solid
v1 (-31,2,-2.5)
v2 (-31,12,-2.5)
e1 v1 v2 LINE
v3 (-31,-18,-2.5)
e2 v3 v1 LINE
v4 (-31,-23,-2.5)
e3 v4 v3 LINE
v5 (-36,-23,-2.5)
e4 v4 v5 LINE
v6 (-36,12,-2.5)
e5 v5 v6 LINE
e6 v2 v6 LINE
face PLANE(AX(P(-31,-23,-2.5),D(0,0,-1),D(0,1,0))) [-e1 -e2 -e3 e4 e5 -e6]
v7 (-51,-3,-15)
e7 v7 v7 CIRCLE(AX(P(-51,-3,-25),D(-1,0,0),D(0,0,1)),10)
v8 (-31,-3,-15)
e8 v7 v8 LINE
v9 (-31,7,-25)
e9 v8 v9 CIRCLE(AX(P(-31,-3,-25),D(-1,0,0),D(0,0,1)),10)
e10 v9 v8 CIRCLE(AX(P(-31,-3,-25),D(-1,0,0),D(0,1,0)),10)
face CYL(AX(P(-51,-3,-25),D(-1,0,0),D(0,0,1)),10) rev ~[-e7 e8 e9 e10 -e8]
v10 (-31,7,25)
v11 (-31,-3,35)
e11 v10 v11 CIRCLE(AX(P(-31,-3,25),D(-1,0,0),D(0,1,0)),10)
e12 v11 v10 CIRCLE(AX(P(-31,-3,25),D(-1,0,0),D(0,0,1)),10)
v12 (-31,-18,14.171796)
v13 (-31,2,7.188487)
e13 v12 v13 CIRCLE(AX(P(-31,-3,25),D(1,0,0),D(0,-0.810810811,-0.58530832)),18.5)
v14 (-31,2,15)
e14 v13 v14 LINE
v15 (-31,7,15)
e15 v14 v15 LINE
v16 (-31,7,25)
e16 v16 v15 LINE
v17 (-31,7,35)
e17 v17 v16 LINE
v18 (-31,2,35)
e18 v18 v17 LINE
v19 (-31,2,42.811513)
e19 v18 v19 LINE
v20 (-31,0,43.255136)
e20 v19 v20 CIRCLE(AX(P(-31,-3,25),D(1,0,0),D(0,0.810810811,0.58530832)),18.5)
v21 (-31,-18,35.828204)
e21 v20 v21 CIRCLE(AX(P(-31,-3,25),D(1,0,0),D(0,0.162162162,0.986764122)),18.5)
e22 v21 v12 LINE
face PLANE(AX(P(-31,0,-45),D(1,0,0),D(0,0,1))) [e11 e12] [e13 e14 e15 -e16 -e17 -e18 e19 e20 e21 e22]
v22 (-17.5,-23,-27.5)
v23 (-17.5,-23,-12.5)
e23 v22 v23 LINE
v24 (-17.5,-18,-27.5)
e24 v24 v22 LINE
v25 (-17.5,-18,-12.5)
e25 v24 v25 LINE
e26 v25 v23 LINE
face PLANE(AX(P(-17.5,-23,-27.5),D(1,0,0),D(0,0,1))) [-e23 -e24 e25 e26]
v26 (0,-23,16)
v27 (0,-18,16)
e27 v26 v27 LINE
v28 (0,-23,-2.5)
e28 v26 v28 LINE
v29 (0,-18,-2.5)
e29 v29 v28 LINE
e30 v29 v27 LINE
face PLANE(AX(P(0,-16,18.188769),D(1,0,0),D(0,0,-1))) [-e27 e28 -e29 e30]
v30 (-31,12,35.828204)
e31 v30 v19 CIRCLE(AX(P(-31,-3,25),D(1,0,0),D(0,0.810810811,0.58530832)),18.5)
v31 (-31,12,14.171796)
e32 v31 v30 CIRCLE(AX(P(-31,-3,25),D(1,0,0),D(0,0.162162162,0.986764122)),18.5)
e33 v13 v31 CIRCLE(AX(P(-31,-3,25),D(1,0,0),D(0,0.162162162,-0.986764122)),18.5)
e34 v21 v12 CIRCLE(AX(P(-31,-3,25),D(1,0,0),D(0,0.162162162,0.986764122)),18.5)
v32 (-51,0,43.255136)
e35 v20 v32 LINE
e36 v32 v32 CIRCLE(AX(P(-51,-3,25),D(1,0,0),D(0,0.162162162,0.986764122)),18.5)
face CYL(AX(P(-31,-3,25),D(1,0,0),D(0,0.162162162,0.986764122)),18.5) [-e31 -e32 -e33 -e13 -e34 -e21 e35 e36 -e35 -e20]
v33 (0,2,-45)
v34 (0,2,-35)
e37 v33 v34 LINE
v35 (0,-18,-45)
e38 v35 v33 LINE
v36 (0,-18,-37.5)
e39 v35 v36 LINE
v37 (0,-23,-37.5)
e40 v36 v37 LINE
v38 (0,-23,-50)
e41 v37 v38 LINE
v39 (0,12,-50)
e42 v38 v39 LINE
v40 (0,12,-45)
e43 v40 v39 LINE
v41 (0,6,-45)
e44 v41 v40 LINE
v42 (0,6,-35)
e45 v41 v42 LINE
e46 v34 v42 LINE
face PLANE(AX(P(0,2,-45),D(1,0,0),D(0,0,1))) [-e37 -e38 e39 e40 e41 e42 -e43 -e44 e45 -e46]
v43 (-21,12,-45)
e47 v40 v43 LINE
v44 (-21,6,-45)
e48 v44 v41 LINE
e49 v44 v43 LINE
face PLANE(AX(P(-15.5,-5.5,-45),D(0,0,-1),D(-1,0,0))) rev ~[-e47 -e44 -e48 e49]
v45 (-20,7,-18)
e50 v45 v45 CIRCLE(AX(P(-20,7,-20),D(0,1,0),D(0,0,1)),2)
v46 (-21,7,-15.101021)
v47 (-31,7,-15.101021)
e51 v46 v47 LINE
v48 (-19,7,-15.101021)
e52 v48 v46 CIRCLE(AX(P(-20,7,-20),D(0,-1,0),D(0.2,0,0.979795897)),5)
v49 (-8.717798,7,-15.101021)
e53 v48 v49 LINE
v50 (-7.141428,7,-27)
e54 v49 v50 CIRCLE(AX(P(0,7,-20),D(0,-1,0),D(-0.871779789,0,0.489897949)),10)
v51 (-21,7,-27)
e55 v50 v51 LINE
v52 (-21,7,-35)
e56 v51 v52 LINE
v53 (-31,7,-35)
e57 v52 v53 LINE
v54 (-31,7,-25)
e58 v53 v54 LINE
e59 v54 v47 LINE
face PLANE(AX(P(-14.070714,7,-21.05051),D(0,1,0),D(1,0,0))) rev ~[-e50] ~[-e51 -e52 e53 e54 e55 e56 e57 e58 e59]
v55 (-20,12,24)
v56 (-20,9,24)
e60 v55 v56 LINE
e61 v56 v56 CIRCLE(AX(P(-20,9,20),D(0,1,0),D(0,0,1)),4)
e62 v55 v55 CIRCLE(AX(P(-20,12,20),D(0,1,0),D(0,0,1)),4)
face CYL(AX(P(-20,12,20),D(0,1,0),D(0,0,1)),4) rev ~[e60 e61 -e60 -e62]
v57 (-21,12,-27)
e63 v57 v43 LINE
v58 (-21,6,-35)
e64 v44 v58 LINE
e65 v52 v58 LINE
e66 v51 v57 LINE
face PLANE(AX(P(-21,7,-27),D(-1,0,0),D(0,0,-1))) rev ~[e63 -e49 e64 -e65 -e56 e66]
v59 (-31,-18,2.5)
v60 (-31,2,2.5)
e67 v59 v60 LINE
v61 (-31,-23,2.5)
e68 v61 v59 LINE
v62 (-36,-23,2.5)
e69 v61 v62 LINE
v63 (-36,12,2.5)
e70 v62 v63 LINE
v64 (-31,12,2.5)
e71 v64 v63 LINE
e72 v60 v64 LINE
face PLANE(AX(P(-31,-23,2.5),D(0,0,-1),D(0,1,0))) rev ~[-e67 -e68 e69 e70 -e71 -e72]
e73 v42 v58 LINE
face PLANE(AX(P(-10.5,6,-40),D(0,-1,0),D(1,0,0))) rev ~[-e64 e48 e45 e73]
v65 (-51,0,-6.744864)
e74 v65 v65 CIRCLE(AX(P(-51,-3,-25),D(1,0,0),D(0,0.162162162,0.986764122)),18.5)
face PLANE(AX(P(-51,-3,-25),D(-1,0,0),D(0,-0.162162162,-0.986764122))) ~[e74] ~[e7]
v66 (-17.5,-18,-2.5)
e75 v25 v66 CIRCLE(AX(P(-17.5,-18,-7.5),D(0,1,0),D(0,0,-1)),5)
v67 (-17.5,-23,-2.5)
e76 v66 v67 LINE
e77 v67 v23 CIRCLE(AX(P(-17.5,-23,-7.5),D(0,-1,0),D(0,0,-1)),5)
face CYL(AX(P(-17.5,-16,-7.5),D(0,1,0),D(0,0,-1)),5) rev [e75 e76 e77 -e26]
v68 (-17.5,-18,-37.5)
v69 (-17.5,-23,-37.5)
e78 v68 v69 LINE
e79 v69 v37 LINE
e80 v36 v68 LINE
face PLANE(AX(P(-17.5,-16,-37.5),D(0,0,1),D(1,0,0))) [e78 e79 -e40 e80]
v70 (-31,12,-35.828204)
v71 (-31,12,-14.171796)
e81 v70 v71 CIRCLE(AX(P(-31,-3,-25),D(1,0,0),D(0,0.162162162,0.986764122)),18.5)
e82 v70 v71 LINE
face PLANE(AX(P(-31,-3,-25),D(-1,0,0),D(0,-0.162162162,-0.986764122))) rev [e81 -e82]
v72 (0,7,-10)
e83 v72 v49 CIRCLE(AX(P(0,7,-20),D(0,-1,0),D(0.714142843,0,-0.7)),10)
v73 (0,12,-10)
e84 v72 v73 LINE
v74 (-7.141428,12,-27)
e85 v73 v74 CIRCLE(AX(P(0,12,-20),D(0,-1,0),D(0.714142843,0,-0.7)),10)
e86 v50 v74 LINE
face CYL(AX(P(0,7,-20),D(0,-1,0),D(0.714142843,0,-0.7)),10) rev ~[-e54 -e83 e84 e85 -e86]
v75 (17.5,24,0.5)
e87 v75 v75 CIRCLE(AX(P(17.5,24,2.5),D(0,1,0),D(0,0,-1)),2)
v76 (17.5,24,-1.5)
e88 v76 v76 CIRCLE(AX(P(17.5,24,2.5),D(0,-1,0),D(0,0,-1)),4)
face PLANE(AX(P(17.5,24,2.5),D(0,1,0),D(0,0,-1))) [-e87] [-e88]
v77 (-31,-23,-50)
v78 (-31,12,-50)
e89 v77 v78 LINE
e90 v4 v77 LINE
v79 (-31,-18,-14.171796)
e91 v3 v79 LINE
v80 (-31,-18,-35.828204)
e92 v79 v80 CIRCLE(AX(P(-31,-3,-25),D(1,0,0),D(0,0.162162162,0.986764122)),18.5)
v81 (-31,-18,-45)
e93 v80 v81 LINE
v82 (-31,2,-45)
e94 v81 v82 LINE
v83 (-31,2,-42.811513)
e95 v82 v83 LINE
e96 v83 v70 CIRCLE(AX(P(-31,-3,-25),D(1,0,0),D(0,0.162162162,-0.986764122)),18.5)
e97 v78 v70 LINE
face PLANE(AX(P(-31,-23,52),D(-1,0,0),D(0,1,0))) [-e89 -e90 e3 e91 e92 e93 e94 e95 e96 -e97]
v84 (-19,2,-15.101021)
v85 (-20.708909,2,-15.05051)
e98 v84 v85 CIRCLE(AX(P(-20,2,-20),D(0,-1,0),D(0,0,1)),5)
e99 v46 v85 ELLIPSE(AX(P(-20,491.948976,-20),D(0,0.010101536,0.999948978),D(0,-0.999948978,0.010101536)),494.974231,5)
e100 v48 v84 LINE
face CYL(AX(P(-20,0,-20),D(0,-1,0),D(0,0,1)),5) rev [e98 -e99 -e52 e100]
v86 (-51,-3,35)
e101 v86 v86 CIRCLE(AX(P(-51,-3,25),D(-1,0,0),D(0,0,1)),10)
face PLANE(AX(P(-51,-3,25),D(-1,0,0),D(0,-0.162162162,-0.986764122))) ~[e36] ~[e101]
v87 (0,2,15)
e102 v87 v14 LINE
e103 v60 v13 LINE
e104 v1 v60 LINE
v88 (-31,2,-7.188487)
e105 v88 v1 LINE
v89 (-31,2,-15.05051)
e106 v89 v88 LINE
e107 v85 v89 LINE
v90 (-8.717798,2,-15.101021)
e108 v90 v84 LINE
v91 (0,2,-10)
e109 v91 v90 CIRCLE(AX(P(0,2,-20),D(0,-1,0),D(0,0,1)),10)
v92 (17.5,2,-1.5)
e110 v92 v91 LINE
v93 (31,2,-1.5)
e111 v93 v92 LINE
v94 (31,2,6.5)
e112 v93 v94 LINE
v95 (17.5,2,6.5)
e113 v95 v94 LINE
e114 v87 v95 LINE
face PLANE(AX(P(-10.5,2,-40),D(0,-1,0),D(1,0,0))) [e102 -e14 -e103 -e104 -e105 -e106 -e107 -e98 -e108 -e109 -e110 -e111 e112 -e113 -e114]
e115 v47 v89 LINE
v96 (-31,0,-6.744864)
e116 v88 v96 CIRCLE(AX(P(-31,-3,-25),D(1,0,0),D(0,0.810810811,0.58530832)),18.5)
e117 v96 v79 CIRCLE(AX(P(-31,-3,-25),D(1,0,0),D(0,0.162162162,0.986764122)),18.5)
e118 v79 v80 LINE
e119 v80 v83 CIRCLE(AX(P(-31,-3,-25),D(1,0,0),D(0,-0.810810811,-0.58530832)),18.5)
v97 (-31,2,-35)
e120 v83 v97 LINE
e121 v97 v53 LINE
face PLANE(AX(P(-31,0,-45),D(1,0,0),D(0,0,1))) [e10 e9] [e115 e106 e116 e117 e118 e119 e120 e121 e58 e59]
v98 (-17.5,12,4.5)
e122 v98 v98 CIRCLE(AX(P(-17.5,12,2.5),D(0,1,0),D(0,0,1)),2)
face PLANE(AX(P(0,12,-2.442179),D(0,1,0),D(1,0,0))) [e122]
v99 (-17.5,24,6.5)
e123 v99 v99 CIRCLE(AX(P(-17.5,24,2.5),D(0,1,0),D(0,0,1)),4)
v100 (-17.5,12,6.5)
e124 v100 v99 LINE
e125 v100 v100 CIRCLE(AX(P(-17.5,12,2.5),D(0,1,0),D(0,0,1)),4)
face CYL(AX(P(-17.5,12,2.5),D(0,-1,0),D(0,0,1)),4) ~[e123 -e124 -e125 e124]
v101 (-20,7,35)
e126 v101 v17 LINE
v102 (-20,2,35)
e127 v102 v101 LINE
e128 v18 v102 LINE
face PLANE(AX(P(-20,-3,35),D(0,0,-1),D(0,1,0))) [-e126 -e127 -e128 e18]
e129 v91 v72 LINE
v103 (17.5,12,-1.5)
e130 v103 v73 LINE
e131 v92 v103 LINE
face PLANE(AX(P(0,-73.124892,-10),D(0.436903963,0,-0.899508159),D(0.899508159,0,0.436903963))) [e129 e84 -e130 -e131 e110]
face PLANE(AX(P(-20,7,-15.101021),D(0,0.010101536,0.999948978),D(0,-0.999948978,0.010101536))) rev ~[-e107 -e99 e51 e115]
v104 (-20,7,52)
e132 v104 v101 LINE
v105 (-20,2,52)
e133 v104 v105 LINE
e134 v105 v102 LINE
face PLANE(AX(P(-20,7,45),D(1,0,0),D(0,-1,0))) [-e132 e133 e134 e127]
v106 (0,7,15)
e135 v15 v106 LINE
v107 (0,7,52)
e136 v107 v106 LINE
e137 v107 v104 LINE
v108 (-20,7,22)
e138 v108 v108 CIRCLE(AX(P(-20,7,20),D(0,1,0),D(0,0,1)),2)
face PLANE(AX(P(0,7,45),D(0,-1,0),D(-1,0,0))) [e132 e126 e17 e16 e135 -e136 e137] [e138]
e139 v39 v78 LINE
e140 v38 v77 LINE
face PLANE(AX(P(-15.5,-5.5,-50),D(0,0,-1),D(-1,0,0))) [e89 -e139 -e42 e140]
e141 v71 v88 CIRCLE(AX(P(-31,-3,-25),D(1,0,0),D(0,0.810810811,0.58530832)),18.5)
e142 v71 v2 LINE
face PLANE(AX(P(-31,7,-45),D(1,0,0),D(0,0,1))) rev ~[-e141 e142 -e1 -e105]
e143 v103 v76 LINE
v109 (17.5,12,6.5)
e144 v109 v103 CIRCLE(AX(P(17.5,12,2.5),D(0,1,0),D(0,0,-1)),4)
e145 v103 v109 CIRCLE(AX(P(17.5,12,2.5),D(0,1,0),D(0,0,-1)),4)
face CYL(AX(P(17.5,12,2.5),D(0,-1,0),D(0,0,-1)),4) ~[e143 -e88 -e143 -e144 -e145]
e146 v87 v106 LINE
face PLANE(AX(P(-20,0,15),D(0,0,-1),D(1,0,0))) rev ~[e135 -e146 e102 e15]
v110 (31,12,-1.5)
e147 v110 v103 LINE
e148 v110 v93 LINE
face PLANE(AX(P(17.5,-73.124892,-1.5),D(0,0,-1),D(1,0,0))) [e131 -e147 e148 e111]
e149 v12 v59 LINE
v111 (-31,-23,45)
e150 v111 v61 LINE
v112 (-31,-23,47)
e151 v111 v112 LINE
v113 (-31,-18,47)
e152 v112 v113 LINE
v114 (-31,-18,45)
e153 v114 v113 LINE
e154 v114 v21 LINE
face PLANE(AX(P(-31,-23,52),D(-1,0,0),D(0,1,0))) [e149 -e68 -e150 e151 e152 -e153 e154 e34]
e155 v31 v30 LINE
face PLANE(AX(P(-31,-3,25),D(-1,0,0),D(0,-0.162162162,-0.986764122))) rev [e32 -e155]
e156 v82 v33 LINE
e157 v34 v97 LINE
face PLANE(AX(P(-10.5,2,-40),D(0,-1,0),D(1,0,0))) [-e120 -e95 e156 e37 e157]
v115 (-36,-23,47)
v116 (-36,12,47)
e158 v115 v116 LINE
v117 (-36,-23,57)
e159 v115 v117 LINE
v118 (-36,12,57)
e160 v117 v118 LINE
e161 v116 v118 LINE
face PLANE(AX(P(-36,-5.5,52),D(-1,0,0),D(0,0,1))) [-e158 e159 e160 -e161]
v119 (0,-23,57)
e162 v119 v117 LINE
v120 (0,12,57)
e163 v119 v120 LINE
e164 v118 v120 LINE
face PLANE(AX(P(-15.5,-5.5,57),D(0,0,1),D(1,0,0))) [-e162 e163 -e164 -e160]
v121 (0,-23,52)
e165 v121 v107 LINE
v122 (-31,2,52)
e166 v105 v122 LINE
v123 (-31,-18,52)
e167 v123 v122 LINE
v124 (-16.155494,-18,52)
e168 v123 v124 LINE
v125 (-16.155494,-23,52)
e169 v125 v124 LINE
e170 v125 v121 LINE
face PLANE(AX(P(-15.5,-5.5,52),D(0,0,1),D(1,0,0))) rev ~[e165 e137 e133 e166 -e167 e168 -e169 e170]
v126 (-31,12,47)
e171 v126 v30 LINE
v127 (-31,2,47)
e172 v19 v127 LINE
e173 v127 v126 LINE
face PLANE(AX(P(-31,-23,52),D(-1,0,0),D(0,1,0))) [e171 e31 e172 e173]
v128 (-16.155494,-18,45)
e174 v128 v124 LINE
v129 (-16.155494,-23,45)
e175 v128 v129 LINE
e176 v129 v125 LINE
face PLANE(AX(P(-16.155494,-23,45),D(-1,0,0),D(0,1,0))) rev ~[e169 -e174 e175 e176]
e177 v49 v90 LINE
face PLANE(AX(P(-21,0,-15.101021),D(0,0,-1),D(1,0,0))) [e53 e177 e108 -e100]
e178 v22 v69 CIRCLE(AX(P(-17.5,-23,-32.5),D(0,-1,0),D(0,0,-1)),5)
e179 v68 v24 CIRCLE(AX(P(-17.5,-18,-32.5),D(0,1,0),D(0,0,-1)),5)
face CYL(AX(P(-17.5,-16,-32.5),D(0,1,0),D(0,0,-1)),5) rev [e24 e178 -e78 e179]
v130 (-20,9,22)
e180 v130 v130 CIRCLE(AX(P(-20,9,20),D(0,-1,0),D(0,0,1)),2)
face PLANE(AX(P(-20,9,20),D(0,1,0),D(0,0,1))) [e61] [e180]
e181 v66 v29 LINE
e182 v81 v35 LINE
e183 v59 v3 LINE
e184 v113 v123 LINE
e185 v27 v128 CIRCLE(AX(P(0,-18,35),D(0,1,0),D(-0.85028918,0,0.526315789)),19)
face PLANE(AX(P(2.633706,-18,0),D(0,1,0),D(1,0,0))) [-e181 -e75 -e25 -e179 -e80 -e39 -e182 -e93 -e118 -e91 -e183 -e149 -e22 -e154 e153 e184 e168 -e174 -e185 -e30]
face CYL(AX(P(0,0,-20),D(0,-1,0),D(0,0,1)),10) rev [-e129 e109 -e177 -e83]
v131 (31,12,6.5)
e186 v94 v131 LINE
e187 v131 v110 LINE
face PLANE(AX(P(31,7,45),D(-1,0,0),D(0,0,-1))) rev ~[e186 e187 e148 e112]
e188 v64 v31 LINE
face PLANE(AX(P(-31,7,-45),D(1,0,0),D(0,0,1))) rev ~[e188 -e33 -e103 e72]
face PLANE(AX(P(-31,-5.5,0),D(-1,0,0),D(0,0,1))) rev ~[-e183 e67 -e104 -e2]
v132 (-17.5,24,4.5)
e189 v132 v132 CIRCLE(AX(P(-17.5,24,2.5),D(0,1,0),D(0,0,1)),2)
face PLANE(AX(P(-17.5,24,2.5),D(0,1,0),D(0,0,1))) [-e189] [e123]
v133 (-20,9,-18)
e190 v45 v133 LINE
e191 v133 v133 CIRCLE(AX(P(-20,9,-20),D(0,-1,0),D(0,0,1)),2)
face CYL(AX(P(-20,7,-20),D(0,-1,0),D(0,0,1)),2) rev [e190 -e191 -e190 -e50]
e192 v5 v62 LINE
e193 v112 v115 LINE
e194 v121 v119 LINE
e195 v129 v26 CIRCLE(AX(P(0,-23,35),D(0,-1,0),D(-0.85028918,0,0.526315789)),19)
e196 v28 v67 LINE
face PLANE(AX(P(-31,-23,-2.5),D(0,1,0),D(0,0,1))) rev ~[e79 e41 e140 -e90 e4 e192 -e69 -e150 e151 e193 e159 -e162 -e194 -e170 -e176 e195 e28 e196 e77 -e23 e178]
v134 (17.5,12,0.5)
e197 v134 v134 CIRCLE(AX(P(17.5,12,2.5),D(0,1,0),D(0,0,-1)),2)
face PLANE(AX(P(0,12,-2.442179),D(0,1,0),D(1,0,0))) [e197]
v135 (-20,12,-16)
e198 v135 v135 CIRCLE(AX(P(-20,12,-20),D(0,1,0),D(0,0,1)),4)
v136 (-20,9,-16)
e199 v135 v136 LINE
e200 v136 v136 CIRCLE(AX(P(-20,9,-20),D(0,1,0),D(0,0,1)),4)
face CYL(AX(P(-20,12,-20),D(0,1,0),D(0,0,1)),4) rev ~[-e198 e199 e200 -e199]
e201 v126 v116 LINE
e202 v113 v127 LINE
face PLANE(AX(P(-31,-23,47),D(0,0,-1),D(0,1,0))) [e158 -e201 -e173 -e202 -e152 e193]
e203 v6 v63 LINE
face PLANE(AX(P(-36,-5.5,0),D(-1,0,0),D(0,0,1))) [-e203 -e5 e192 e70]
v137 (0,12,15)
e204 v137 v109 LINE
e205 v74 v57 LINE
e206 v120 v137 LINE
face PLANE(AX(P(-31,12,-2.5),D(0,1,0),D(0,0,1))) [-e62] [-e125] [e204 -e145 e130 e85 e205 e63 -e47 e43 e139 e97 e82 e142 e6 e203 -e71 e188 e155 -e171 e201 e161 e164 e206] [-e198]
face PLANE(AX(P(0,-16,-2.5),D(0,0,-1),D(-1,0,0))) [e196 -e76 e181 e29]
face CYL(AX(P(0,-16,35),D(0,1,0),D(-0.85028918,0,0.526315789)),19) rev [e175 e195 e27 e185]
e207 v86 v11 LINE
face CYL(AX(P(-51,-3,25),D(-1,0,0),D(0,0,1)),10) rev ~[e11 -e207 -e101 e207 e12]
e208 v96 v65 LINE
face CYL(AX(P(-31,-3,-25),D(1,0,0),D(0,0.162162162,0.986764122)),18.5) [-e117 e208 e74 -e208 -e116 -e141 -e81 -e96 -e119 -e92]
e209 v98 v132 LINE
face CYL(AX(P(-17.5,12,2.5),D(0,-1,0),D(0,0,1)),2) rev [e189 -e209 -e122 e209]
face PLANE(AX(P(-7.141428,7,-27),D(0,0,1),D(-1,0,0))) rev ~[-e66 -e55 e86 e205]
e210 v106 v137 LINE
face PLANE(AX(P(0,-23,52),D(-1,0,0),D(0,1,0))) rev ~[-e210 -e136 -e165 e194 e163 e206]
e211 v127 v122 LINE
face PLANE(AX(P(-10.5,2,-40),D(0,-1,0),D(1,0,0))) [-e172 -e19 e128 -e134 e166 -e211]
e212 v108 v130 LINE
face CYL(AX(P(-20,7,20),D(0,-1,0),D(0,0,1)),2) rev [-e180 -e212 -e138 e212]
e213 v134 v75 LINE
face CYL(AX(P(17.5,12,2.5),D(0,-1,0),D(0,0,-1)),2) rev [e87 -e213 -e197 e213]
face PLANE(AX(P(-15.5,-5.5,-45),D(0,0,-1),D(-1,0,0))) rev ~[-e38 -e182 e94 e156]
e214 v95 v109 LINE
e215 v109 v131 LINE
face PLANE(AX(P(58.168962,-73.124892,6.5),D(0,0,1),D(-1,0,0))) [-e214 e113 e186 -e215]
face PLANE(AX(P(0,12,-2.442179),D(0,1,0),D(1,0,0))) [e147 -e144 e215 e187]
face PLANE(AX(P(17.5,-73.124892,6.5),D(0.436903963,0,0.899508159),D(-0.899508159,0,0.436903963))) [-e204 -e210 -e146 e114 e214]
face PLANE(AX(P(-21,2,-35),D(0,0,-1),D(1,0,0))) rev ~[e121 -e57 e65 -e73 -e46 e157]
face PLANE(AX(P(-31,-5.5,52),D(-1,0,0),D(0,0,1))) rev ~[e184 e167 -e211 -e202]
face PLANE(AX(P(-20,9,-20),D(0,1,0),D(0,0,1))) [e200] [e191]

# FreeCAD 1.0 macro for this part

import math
import FreeCAD as App
import Part
import Sketcher

V = App.Vector
Q = App.Units.Quantity


def add_polygon(sketch, points):
    """Adds a closed chain of lines whose ends are joined by coincident constraints."""
    first, n = sketch.GeometryCount, len(points)
    for a, b in zip(points, points[1:] + points[:1]):
        sketch.addGeometry(Part.LineSegment(App.Vector(*a, 0), App.Vector(*b, 0)), False)
    for i in range(n):
        sketch.addConstraint(Sketcher.Constraint("Coincident", first + i, 2, first + (i + 1) % n, 1))

doc = App.newDocument("Part")
params = doc.addObject("Spreadsheet::Sheet", "Params")
for row, (alias, value) in enumerate([
    ("sketch1_diameter", "10 mm"),
    ("sketch1_diameter2", "20 mm"),
    ("sketch1_width", "62 mm"),
    ("sketch1_height", "90 mm"),
    ("pad1_length", "7 mm"),
    ("sketch2_diameter", "10 mm"),
    ("sketch2_diameter2", "20 mm"),
    ("sketch2_radius", "19 mm"),
    ("sketch2_width", "62 mm"),
    ("sketch2_height", "90 mm"),
    ("pad2_length", "7 mm"),
    ("sketch3_diameter", "37 mm"),
    ("pad3_length", "20 mm"),
    ("sketch4_width", "42 mm"),
    ("sketch4_height", "18 mm"),
    ("pocket1_length", "7 mm"),
    ("sketch5_diameter", "4 mm"),
    ("sketch5_radius", "10 mm"),
    ("sketch5_width", "10 mm"),
    ("sketch5_width2", "62 mm"),
    ("sketch5_height", "18 mm"),
    ("pad4_length", "5 mm"),
    ("sketch6_diameter", "8 mm"),
    ("sketch6_diameter2", "4 mm"),
    ("pad5_length", "12 mm"),
    ("sketch7_diameter", "8 mm"),
    ("pocket2_length", "3 mm"),
    ("sketch9_width", "20 mm"),
    ("sketch9_height", "30 mm"),
    ("pocket4_length", "7 mm"),
    ("sketch10_height", "10 mm"),
    ("sketch10_width", "17.5 mm"),
    ("pocket5_length", "7 mm"),
    ("sketch11_height", "15 mm"),
    ("sketch12_height", "90 mm"),
    ("pocket7_length", "2 mm"),
    ("sketch13_height", "90 mm"),
    ("pocket8_length", "2 mm"),
    ("sketch14_width", "31 mm"),
    ("sketch14_height", "35 mm"),
    ("pad6_length", "5 mm"),
    ("sketch15_width", "31 mm"),
    ("sketch15_width2", "11 mm"),
    ("sketch15_height", "5 mm"),
    ("pad7_length", "7 mm"),
    ("sketch16_width", "31 mm"),
    ("sketch16_height", "35 mm"),
    ("pad8_length", "5 mm"),
    ("sketch17_width", "21 mm"),
    ("sketch17_height", "10 mm"),
    ("pad9_length", "4 mm"),
    ("sketch18_width", "35 mm"),
    ("sketch18_height", "5 mm"),
    ("sketch18_height2", "10 mm"),
    ("pad10_length", "5 mm"),
    ("sketch19_diameter", "20 mm"),
    ("sketch20_width", "10 mm"),
    ("sketch20_height", "20 mm"),
    ("pocket10_length", "11 mm"),
], start=1):
    params.set(f"A{row}", alias)
    params.set(f"B{row}", "=" + value)
    params.setAlias(f"B{row}", alias)

body = doc.addObject("PartDesign::Body", "Body")

# Sketch on XZ plane
sketch1 = doc.addObject("Sketcher::SketchObject", "Sketch")
body.addObject(sketch1)
sketch1.AttachmentSupport = (doc.XZ_Plane, [""])
sketch1.MapMode = "FlatFace"
add_polygon(sketch1, [(-31, -45), (-31, 45), (31, 45), (31, -45)])  # lines 0-3
sketch1.addGeometry(Part.Circle(V(-20, 20, 0), V(0, 0, 1), 5), False)  # 4
sketch1.addGeometry(Part.Circle(V(20, 20, 0), V(0, 0, 1), 5), False)  # 5
sketch1.addGeometry(Part.Circle(V(-20, -20, 0), V(0, 0, 1), 5), False)  # 6
sketch1.addGeometry(Part.Circle(V(0, -20, 0), V(0, 0, 1), 10), False)  # 7
sketch1.addGeometry(Part.Circle(V(20, -20, 0), V(0, 0, 1), 5), False)  # 8
sketch1.addConstraint([
    Sketcher.Constraint("Vertical", 0),
    Sketcher.Constraint("Horizontal", 1),
    Sketcher.Constraint("Vertical", 2),
    Sketcher.Constraint("Horizontal", 3),
    Sketcher.Constraint("Equal", 4, 5),
    Sketcher.Constraint("Equal", 5, 6),
    Sketcher.Constraint("Equal", 6, 8),
    Sketcher.Constraint("Symmetric", 5, 3, 6, 3, -1, 1),
    Sketcher.Constraint("Symmetric", 4, 3, 8, 3, -1, 1),
    Sketcher.Constraint("Symmetric", 0, 2, 2, 2, -1, 1),
    Sketcher.Constraint("Symmetric", 4, 3, 5, 3, -2),
    Sketcher.Constraint("PointOnObject", 7, 3, -2),
    Sketcher.Constraint("Horizontal", 6, 3, 7, 3),
    Sketcher.Constraint("Diameter", 4, Q("10 mm")),
    Sketcher.Constraint("Diameter", 7, Q("20 mm")),
    Sketcher.Constraint("DistanceX", 1, 1, 1, 2, Q("62 mm")),
    Sketcher.Constraint("DistanceY", 0, 1, 0, 2, Q("90 mm")),
    Sketcher.Constraint("DistanceX", 4, 3, -1, 1, Q("20 mm")),
    Sketcher.Constraint("DistanceY", -1, 1, 4, 3, Q("20 mm")),
])
sketch1.setExpression("Constraints[17]", "Params.sketch1_diameter")
sketch1.setExpression("Constraints[18]", "Params.sketch1_diameter2")
sketch1.setExpression("Constraints[19]", "Params.sketch1_width")
sketch1.setExpression("Constraints[20]", "Params.sketch1_height")
pad1 = doc.addObject("PartDesign::Pad", "Pad")
body.addObject(pad1)
pad1.Profile = sketch1
pad1.setExpression("Length", "Params.pad1_length")
pad1.Reversed = True
body2 = doc.addObject("PartDesign::Body", "Body001")

# Sketch on XZ plane
sketch2 = doc.addObject("Sketcher::SketchObject", "Sketch001")
body2.addObject(sketch2)
sketch2.AttachmentSupport = (doc.getObject("XZ_Plane001"), [""])
sketch2.MapMode = "FlatFace"
sketch2.AttachmentOffset = App.Placement(V(0, 0, 16), App.Rotation())
sketch2.addGeometry([
    Part.LineSegment(V(-31, -45, 0), V(31, -45, 0)),  # 0
    Part.LineSegment(V(31, -45, 0), V(31, 45, 0)),  # 1
    Part.LineSegment(V(31, 45, 0), V(16, 45, 0)),  # 2
    Part.ArcOfCircle(Part.Circle(V(0, 35, 0), V(0, 0, 1), 19), math.radians(148), math.radians(392)),  # 3
    Part.LineSegment(V(-16, 45, 0), V(-31, 45, 0)),  # 4
    Part.LineSegment(V(-31, 45, 0), V(-31, -45, 0)),  # 5
    Part.Circle(V(-18, -8, 0), V(0, 0, 1), 5),  # 6
    Part.Circle(V(18, -8, 0), V(0, 0, 1), 5),  # 7
    Part.Circle(V(-18, -32, 0), V(0, 0, 1), 5),  # 8
    Part.Circle(V(0, -20, 0), V(0, 0, 1), 10),  # 9
    Part.Circle(V(18, -32, 0), V(0, 0, 1), 5),  # 10
], False)
sketch2.addConstraint([
    Sketcher.Constraint("Coincident", 0, 2, 1, 1),
    Sketcher.Constraint("Coincident", 1, 2, 2, 1),
    Sketcher.Constraint("Coincident", 2, 2, 3, 2),
    Sketcher.Constraint("Coincident", 3, 1, 4, 1),
    Sketcher.Constraint("Coincident", 4, 2, 5, 1),
    Sketcher.Constraint("Coincident", 5, 2, 0, 1),
    Sketcher.Constraint("Horizontal", 0),
    Sketcher.Constraint("Vertical", 1),
    Sketcher.Constraint("Horizontal", 2),
    Sketcher.Constraint("Horizontal", 4),
    Sketcher.Constraint("Vertical", 5),
    Sketcher.Constraint("Equal", 6, 7),
    Sketcher.Constraint("Equal", 7, 8),
    Sketcher.Constraint("Equal", 8, 10),
    Sketcher.Constraint("Symmetric", 0, 2, 4, 2, -1, 1),
    Sketcher.Constraint("Symmetric", 6, 3, 7, 3, -2),
    Sketcher.Constraint("Symmetric", 8, 3, 10, 3, -2),
    Sketcher.Constraint("Symmetric", 2, 2, 3, 1, -2),
    Sketcher.Constraint("PointOnObject", 9, 3, -2),
    Sketcher.Constraint("Vertical", 6, 3, 8, 3),
    Sketcher.Constraint("Diameter", 6, Q("10 mm")),
    Sketcher.Constraint("Diameter", 9, Q("20 mm")),
    Sketcher.Constraint("Radius", 3, Q("19 mm")),
    Sketcher.Constraint("DistanceX", 0, 1, 0, 2, Q("62 mm")),
    Sketcher.Constraint("DistanceY", 1, 1, 1, 2, Q("90 mm")),
    Sketcher.Constraint("DistanceY", -1, 1, 3, 3, Q("35 mm")),
    Sketcher.Constraint("DistanceY", 9, 3, -1, 1, Q("20 mm")),
    Sketcher.Constraint("DistanceX", 6, 3, 7, 3, Q("35 mm")),
    Sketcher.Constraint("DistanceY", 8, 3, 6, 3, Q("25 mm")),
    Sketcher.Constraint("DistanceY", 6, 3, -1, 1, Q("7.5 mm")),
])
sketch2.setExpression("Constraints[20]", "Params.sketch2_diameter")
sketch2.setExpression("Constraints[21]", "Params.sketch2_diameter2")
sketch2.setExpression("Constraints[22]", "Params.sketch2_radius")
sketch2.setExpression("Constraints[23]", "Params.sketch2_width")
sketch2.setExpression("Constraints[24]", "Params.sketch2_height")
pad2 = doc.addObject("PartDesign::Pad", "Pad001")
body2.addObject(pad2)
pad2.Profile = sketch2
pad2.setExpression("Length", "Params.pad2_length")
body.AllowCompound = True
doc.recompute()

boolean = doc.addObject("PartDesign::Boolean", "Boolean")
body.addObject(boolean)
boolean.Type = "Fuse"
boolean.addObjects([body2])

# Sketch on YZ plane
sketch3 = doc.addObject("Sketcher::SketchObject", "Sketch002")
body.addObject(sketch3)
sketch3.AttachmentSupport = (doc.YZ_Plane, [""])
sketch3.MapMode = "FlatFace"
sketch3.AttachmentOffset = App.Placement(V(0, 0, 31), App.Rotation())
sketch3.addGeometry([
    Part.Circle(V(-3, 25, 0), V(0, 0, 1), 18),
    Part.Circle(V(-3, -25, 0), V(0, 0, 1), 18),
], False)
sketch3.addConstraint([
    Sketcher.Constraint("Equal", 0, 1),
    Sketcher.Constraint("Symmetric", 0, 3, 1, 3, -1),
    Sketcher.Constraint("Diameter", 0, Q("37 mm")),
    Sketcher.Constraint("DistanceX", 0, 3, -1, 1, Q("3 mm")),
    Sketcher.Constraint("DistanceY", -1, 1, 0, 3, Q("25 mm")),
])
sketch3.setExpression("Constraints[2]", "Params.sketch3_diameter")
pad3 = doc.addObject("PartDesign::Pad", "Pad002")
body.addObject(pad3)
pad3.Profile = sketch3
pad3.setExpression("Length", "Params.pad3_length")
doc.recompute()

mirrored = doc.addObject("PartDesign::Mirrored", "Mirrored")
body.addObject(mirrored)
mirrored.Originals = [pad3]
mirrored.MirrorPlane = (doc.YZ_Plane, [""])
body.Tip = mirrored

# Sketch on XZ plane
sketch4 = doc.addObject("Sketcher::SketchObject", "Sketch003")
body.addObject(sketch4)
sketch4.AttachmentSupport = (doc.XZ_Plane, [""])
sketch4.MapMode = "FlatFace"
sketch4.AttachmentOffset = App.Placement(V(0, 0, -7), App.Rotation())
add_polygon(sketch4, [(-21, -45), (-21, -27), (21, -27), (21, -45)])  # lines 0-3
sketch4.addConstraint([
    Sketcher.Constraint("Vertical", 0),
    Sketcher.Constraint("Horizontal", 1),
    Sketcher.Constraint("Vertical", 2),
    Sketcher.Constraint("Horizontal", 3),
    Sketcher.Constraint("DistanceX", 1, 1, 1, 2, Q("42 mm")),
    Sketcher.Constraint("DistanceY", 0, 1, 0, 2, Q("18 mm")),
    Sketcher.Constraint("DistanceX", 0, 2, -1, 1, Q("21 mm")),
    Sketcher.Constraint("DistanceY", 0, 2, -1, 1, Q("27 mm")),
])
sketch4.setExpression("Constraints[8]", "Params.sketch4_width")
sketch4.setExpression("Constraints[9]", "Params.sketch4_height")
pocket1 = doc.addObject("PartDesign::Pocket", "Pocket")
body.addObject(pocket1)
pocket1.Profile = sketch4
pocket1.setExpression("Length", "Params.pocket1_length")
pocket1.Reversed = True

# Sketch on XZ plane
sketch5 = doc.addObject("Sketcher::SketchObject", "Sketch004")
body.addObject(sketch5)
sketch5.AttachmentSupport = (doc.XZ_Plane, [""])
sketch5.MapMode = "FlatFace"
sketch5.AttachmentOffset = App.Placement(V(0, 0, -7), App.Rotation())
sketch5.addGeometry([
    Part.LineSegment(V(-7.1, -27, 0), V(-21, -27, 0)),  # 0
    Part.LineSegment(V(-21, -27, 0), V(-21, -45, 0)),  # 1
    Part.LineSegment(V(-21, -45, 0), V(-31, -45, 0)),  # 2
    Part.LineSegment(V(-31, -45, 0), V(-31, 45, 0)),  # 3
    Part.LineSegment(V(-31, 45, 0), V(31, 45, 0)),  # 4
    Part.LineSegment(V(31, 45, 0), V(31, -45, 0)),  # 5
    Part.LineSegment(V(31, -45, 0), V(21, -45, 0)),  # 6
    Part.LineSegment(V(21, -45, 0), V(21, -27, 0)),  # 7
    Part.LineSegment(V(21, -27, 0), V(7.1, -27, 0)),  # 8
    Part.ArcOfCircle(Part.Circle(V(0, -20, 0), V(0, 0, 1), 10), math.radians(-44), math.radians(224)),  # 9
    Part.Circle(V(-20, 20, 0), V(0, 0, 1), 2),  # 10
    Part.Circle(V(20, 20, 0), V(0, 0, 1), 2),  # 11
    Part.Circle(V(-20, -20, 0), V(0, 0, 1), 2),  # 12
    Part.Circle(V(20, -20, 0), V(0, 0, 1), 2),  # 13
], False)
sketch5.addConstraint([
    Sketcher.Constraint("Coincident", 0, 2, 1, 1),
    Sketcher.Constraint("Coincident", 1, 2, 2, 1),
    Sketcher.Constraint("Coincident", 2, 2, 3, 1),
    Sketcher.Constraint("Coincident", 3, 2, 4, 1),
    Sketcher.Constraint("Coincident", 4, 2, 5, 1),
    Sketcher.Constraint("Coincident", 5, 2, 6, 1),
    Sketcher.Constraint("Coincident", 6, 2, 7, 1),
    Sketcher.Constraint("Coincident", 7, 2, 8, 1),
    Sketcher.Constraint("Coincident", 8, 2, 9, 1),
    Sketcher.Constraint("Coincident", 9, 2, 0, 1),
    Sketcher.Constraint("Horizontal", 0),
    Sketcher.Constraint("Vertical", 1),
    Sketcher.Constraint("Horizontal", 2),
    Sketcher.Constraint("Vertical", 3),
    Sketcher.Constraint("Horizontal", 4),
    Sketcher.Constraint("Vertical", 5),
    Sketcher.Constraint("Horizontal", 6),
    Sketcher.Constraint("Vertical", 7),
    Sketcher.Constraint("Horizontal", 8),
    Sketcher.Constraint("Equal", 10, 11),
    Sketcher.Constraint("Equal", 11, 12),
    Sketcher.Constraint("Equal", 12, 13),
    Sketcher.Constraint("Symmetric", 11, 3, 12, 3, -1, 1),
    Sketcher.Constraint("Symmetric", 10, 3, 13, 3, -1, 1),
    Sketcher.Constraint("Symmetric", 2, 2, 4, 2, -1, 1),
    Sketcher.Constraint("Symmetric", 10, 3, 11, 3, -2),
    Sketcher.Constraint("Symmetric", 1, 2, 6, 2, -2),
    Sketcher.Constraint("Symmetric", 8, 2, 9, 2, -2),
    Sketcher.Constraint("Horizontal", 9, 3, 12, 3),
    Sketcher.Constraint("Diameter", 10, Q("4 mm")),
    Sketcher.Constraint("Radius", 9, Q("10 mm")),
    Sketcher.Constraint("DistanceX", 2, 2, 2, 1, Q("10 mm")),
    Sketcher.Constraint("DistanceX", 4, 1, 4, 2, Q("62 mm")),
    Sketcher.Constraint("DistanceY", 1, 2, 1, 1, Q("18 mm")),
    Sketcher.Constraint("DistanceY", 3, 1, 3, 2, Q("90 mm")),
    Sketcher.Constraint("DistanceY", 9, 3, -1, 1, Q("20 mm")),
    Sketcher.Constraint("DistanceX", 10, 3, -1, 1, Q("20 mm")),
])
sketch5.setExpression("Constraints[29]", "Params.sketch5_diameter")
sketch5.setExpression("Constraints[30]", "Params.sketch5_radius")
sketch5.setExpression("Constraints[31]", "Params.sketch5_width")
sketch5.setExpression("Constraints[32]", "Params.sketch5_width2")
sketch5.setExpression("Constraints[33]", "Params.sketch5_height")
pad4 = doc.addObject("PartDesign::Pad", "Pad003")
body.addObject(pad4)
pad4.Profile = sketch5
pad4.setExpression("Length", "Params.pad4_length")
pad4.Reversed = True

# Sketch on XZ plane
sketch6 = doc.addObject("Sketcher::SketchObject", "Sketch005")
body.addObject(sketch6)
sketch6.AttachmentSupport = (doc.XZ_Plane, [""])
sketch6.MapMode = "FlatFace"
sketch6.AttachmentOffset = App.Placement(V(0, 0, -12), App.Rotation())
sketch6.addGeometry([
    Part.Circle(V(-17.5, 2.5, 0), V(0, 0, 1), 4),
    Part.Circle(V(-17.5, 2.5, 0), V(0, 0, 1), 2),
    Part.Circle(V(17.5, 2.5, 0), V(0, 0, 1), 4),
    Part.Circle(V(17.5, 2.5, 0), V(0, 0, 1), 2),
], False)
sketch6.addConstraint([
    Sketcher.Constraint("Coincident", 1, 3, 0, 3),
    Sketcher.Constraint("Coincident", 3, 3, 2, 3),
    Sketcher.Constraint("Equal", 0, 2),
    Sketcher.Constraint("Equal", 1, 3),
    Sketcher.Constraint("Symmetric", 0, 3, 2, 3, -2),
    Sketcher.Constraint("Diameter", 0, Q("8 mm")),
    Sketcher.Constraint("Diameter", 1, Q("4 mm")),
    Sketcher.Constraint("DistanceX", 0, 3, 2, 3, Q("35 mm")),
    Sketcher.Constraint("DistanceY", -1, 1, 0, 3, Q("2.5 mm")),
])
sketch6.setExpression("Constraints[5]", "Params.sketch6_diameter")
sketch6.setExpression("Constraints[6]", "Params.sketch6_diameter2")
pad5 = doc.addObject("PartDesign::Pad", "Pad004")
body.addObject(pad5)
pad5.Profile = sketch6
pad5.setExpression("Length", "Params.pad5_length")
pad5.Reversed = True

# Sketch on XZ plane
sketch7 = doc.addObject("Sketcher::SketchObject", "Sketch006")
body.addObject(sketch7)
sketch7.AttachmentSupport = (doc.XZ_Plane, [""])
sketch7.MapMode = "FlatFace"
sketch7.AttachmentOffset = App.Placement(V(0, 0, -12), App.Rotation())
sketch7.addGeometry([
    Part.Circle(V(-20, -20, 0), V(0, 0, 1), 4),
    Part.Circle(V(20, -20, 0), V(0, 0, 1), 4),
    Part.Circle(V(20, 20, 0), V(0, 0, 1), 4),
    Part.Circle(V(-20, 20, 0), V(0, 0, 1), 4),
], False)
sketch7.addConstraint([
    Sketcher.Constraint("Equal", 0, 1),
    Sketcher.Constraint("Equal", 1, 2),
    Sketcher.Constraint("Equal", 2, 3),
    Sketcher.Constraint("Symmetric", 0, 3, 2, 3, -1, 1),
    Sketcher.Constraint("Symmetric", 1, 3, 3, 3, -1, 1),
    Sketcher.Constraint("Symmetric", 0, 3, 1, 3, -2),
    Sketcher.Constraint("Diameter", 0, Q("8 mm")),
    Sketcher.Constraint("DistanceX", 0, 3, -1, 1, Q("20 mm")),
    Sketcher.Constraint("DistanceY", 0, 3, -1, 1, Q("20 mm")),
])
sketch7.setExpression("Constraints[6]", "Params.sketch7_diameter")
pocket2 = doc.addObject("PartDesign::Pocket", "Pocket001")
body.addObject(pocket2)
pocket2.Profile = sketch7
pocket2.setExpression("Length", "Params.pocket2_length")
pocket2.Reversed = True

# Sketch on XZ plane
sketch8 = doc.addObject("Sketcher::SketchObject", "Sketch007")
body.addObject(sketch8)
sketch8.AttachmentSupport = (doc.XZ_Plane, [""])
sketch8.MapMode = "FlatFace"
add_polygon(sketch8, [(58, -2), (58, -55), (0, -55), (0, -10), (18, -2)])  # lines 0-4
add_polygon(sketch8, [(0, 53), (58, 53), (58, 6), (18, 6), (0, 15)])  # lines 5-9
sketch8.addConstraint([
    Sketcher.Constraint("Vertical", 0),
    Sketcher.Constraint("Horizontal", 1),
    Sketcher.Constraint("Vertical", 2),
    Sketcher.Constraint("Horizontal", 4),
    Sketcher.Constraint("Horizontal", 5),
    Sketcher.Constraint("Vertical", 6),
    Sketcher.Constraint("Horizontal", 7),
    Sketcher.Constraint("Vertical", 9),
    Sketcher.Constraint("PointOnObject", 1, 2, -2),
    Sketcher.Constraint("PointOnObject", 8, 2, -2),
    Sketcher.Constraint("Vertical", 4, 2, 5, 2),
    Sketcher.Constraint("Vertical", 3, 2, 7, 2),
    Sketcher.Constraint("Equal", 3, 8),
    Sketcher.Constraint("DistanceY", 2, 2, -1, 1, Q("10 mm")),
    Sketcher.Constraint("DistanceY", -1, 1, 8, 2, Q("15 mm")),
    Sketcher.Constraint("DistanceY", 4, 2, 6, 2, Q("8 mm")),
    Sketcher.Constraint("DistanceX", -1, 1, 3, 2, Q("17.5 mm")),
    Sketcher.Constraint("DistanceX", 1, 2, 1, 1, Q("58.168962 mm")),
    Sketcher.Constraint("DistanceY", 0, 2, 0, 1, Q("53.040507 mm")),
    Sketcher.Constraint("DistanceY", 6, 2, 6, 1, Q("46.802123 mm")),
])
pocket3 = doc.addObject("PartDesign::Pocket", "Pocket002")
body.addObject(pocket3)
pocket3.Profile = sketch8
pocket3.Type = "ThroughAll"
pocket3.Midplane = True

# Sketch on XZ plane
sketch9 = doc.addObject("Sketcher::SketchObject", "Sketch008")
body.addObject(sketch9)
sketch9.AttachmentSupport = (doc.XZ_Plane, [""])
sketch9.MapMode = "FlatFace"
add_polygon(sketch9, [(-21, -27), (-21, -15), (-7, -15), (-7, -27)])  # lines 0-3
add_polygon(sketch9, [(-20, 15), (-20, 45), (0, 45), (0, 15)])  # lines 4-7
sketch9.addConstraint([
    Sketcher.Constraint("Vertical", 0),
    Sketcher.Constraint("Horizontal", 1),
    Sketcher.Constraint("Vertical", 2),
    Sketcher.Constraint("Horizontal", 3),
    Sketcher.Constraint("Vertical", 4),
    Sketcher.Constraint("Horizontal", 5),
    Sketcher.Constraint("Vertical", 6),
    Sketcher.Constraint("Horizontal", 7),
    Sketcher.Constraint("PointOnObject", 5, 2, -2),
    Sketcher.Constraint("DistanceX", 5, 1, 5, 2, Q("20 mm")),
    Sketcher.Constraint("DistanceY", 4, 1, 4, 2, Q("30 mm")),
    Sketcher.Constraint("DistanceX", 0, 2, -1, 1, Q("21 mm")),
    Sketcher.Constraint("DistanceY", 2, 2, -1, 1, Q("27 mm")),
    Sketcher.Constraint("DistanceY", -1, 1, 4, 2, Q("45 mm")),
    Sketcher.Constraint("DistanceX", 1, 1, 1, 2, Q("13.858572 mm")),
    Sketcher.Constraint("DistanceY", 0, 1, 0, 2, Q("11.898979 mm")),
])
sketch9.setExpression("Constraints[17]", "Params.sketch9_width")
sketch9.setExpression("Constraints[18]", "Params.sketch9_height")
pocket4 = doc.addObject("PartDesign::Pocket", "Pocket003")
body.addObject(pocket4)
pocket4.Profile = sketch9
pocket4.setExpression("Length", "Params.pocket4_length")

# Sketch on XZ plane
sketch10 = doc.addObject("Sketcher::SketchObject", "Sketch009")
body.addObject(sketch10)
sketch10.AttachmentSupport = (doc.XZ_Plane, [""])
sketch10.MapMode = "FlatFace"
sketch10.AttachmentOffset = App.Placement(V(0, 0, 16), App.Rotation())
add_polygon(sketch10, [(-18, -38), (-18, -28), (0, -28), (0, -38)])  # lines 0-3
add_polygon(sketch10, [(33, -12), (-18, -12), (-18, -2), (0, -2), (0, 18), (33, 18)])  # lines 4-9
sketch10.addConstraint([
    Sketcher.Constraint("Vertical", 0),
    Sketcher.Constraint("Horizontal", 1),
    Sketcher.Constraint("Vertical", 2),
    Sketcher.Constraint("Horizontal", 3),
    Sketcher.Constraint("Horizontal", 4),
    Sketcher.Constraint("Vertical", 5),
    Sketcher.Constraint("Horizontal", 6),
    Sketcher.Constraint("Vertical", 7),
    Sketcher.Constraint("Horizontal", 8),
    Sketcher.Constraint("Vertical", 9),
    Sketcher.Constraint("PointOnObject", 1, 2, -2),
    Sketcher.Constraint("PointOnObject", 6, 2, -2),
    Sketcher.Constraint("Vertical", 3, 2, 4, 2),
    Sketcher.Constraint("Equal", 2, 5),
    Sketcher.Constraint("DistanceY", 0, 1, 0, 2, Q("10 mm")),
    Sketcher.Constraint("DistanceX", 1, 1, 1, 2, Q("17.5 mm")),
    Sketcher.Constraint("DistanceY", 0, 2, 4, 2, Q("15 mm")),
    Sketcher.Constraint("DistanceY", 0, 2, -1, 1, Q("27.5 mm")),
    Sketcher.Constraint("DistanceX", 4, 2, 4, 1, Q("50.155458 mm")),
    Sketcher.Constraint("DistanceY", 7, 1, 7, 2, Q("20.688769 mm")),
])
sketch10.setExpression("Constraints[24]", "Params.sketch10_height")
sketch10.setExpression("Constraints[25]", "Params.sketch10_width")
pocket5 = doc.addObject("PartDesign::Pocket", "Pocket004")
body.addObject(pocket5)
pocket5.Profile = sketch10
pocket5.setExpression("Length", "Params.pocket5_length")
pocket5.Reversed = True

# Sketch on XZ plane
sketch11 = doc.addObject("Sketcher::SketchObject", "Sketch010")
body.addObject(sketch11)
sketch11.AttachmentSupport = (doc.XZ_Plane, [""])
sketch11.MapMode = "FlatFace"
sketch11.AttachmentOffset = App.Placement(V(0, 0, 23), App.Rotation())
add_polygon(sketch11, [(-18, -12), (-18, -28), (-7, -28), (-7, -12)])  # lines 0-3
sketch11.addConstraint([
    Sketcher.Constraint("Vertical", 0),
    Sketcher.Constraint("Horizontal", 1),
    Sketcher.Constraint("Vertical", 2),
    Sketcher.Constraint("Horizontal", 3),
    Sketcher.Constraint("DistanceY", 0, 2, 0, 1, Q("15 mm")),
    Sketcher.Constraint("DistanceX", 0, 2, -1, 1, Q("17.5 mm")),
    Sketcher.Constraint("DistanceY", 0, 2, -1, 1, Q("27.5 mm")),
    Sketcher.Constraint("DistanceX", 1, 1, 1, 2, Q("10.885622 mm")),
])
sketch11.setExpression("Constraints[8]", "Params.sketch11_height")
pocket6 = doc.addObject("PartDesign::Pocket", "Pocket005")
body.addObject(pocket6)
pocket6.Profile = sketch11
pocket6.Type = "UpToFirst"

# Sketch on XZ plane
sketch12 = doc.addObject("Sketcher::SketchObject", "Sketch011")
body.addObject(sketch12)
sketch12.AttachmentSupport = (doc.XZ_Plane, [""])
sketch12.MapMode = "FlatFace"
add_polygon(sketch12, [(-31, 45), (-31, -45), (62, -45), (62, 45)])  # lines 0-3
sketch12.addConstraint([
    Sketcher.Constraint("Vertical", 0),
    Sketcher.Constraint("Horizontal", 1),
    Sketcher.Constraint("Vertical", 2),
    Sketcher.Constraint("Horizontal", 3),
    Sketcher.Constraint("DistanceY", 0, 2, 0, 1, Q("90 mm")),
    Sketcher.Constraint("DistanceX", 0, 2, -1, 1, Q("31 mm")),
    Sketcher.Constraint("DistanceY", 0, 2, -1, 1, Q("45 mm")),
    Sketcher.Constraint("DistanceX", 1, 1, 1, 2, Q("92.977349 mm")),
])
sketch12.setExpression("Constraints[8]", "Params.sketch12_height")
pocket7 = doc.addObject("PartDesign::Pocket", "Pocket006")
body.addObject(pocket7)
pocket7.Profile = sketch12
pocket7.setExpression("Length", "Params.pocket7_length")

# Sketch on XZ plane
sketch13 = doc.addObject("Sketcher::SketchObject", "Sketch012")
body.addObject(sketch13)
sketch13.AttachmentSupport = (doc.XZ_Plane, [""])
sketch13.MapMode = "FlatFace"
sketch13.AttachmentOffset = App.Placement(V(0, 0, 16), App.Rotation())
add_polygon(sketch13, [(-31, -45), (-31, 45), (36, 45), (36, -45)])  # lines 0-3
sketch13.addConstraint([
    Sketcher.Constraint("Vertical", 0),
    Sketcher.Constraint("Horizontal", 1),
    Sketcher.Constraint("Vertical", 2),
    Sketcher.Constraint("Horizontal", 3),
    Sketcher.Constraint("DistanceY", 0, 1, 0, 2, Q("90 mm")),
    Sketcher.Constraint("DistanceX", 0, 2, -1, 1, Q("31 mm")),
    Sketcher.Constraint("DistanceY", -1, 1, 0, 2, Q("45 mm")),
    Sketcher.Constraint("DistanceX", 1, 1, 1, 2, Q("67.267412 mm")),
])
sketch13.setExpression("Constraints[8]", "Params.sketch13_height")
pocket8 = doc.addObject("PartDesign::Pocket", "Pocket007")
body.addObject(pocket8)
pocket8.Profile = sketch13
pocket8.setExpression("Length", "Params.pocket8_length")
pocket8.Reversed = True

# Sketch on XY plane
sketch14 = doc.addObject("Sketcher::SketchObject", "Sketch013")
body.addObject(sketch14)
sketch14.AttachmentSupport = (doc.XY_Plane, [""])
sketch14.MapMode = "FlatFace"
sketch14.AttachmentOffset = App.Placement(V(0, 0, -45), App.Rotation())
add_polygon(sketch14, [(0, 12), (0, -23), (-31, -23), (-31, 12)])  # lines 0-3
sketch14.addConstraint([
    Sketcher.Constraint("Vertical", 0),
    Sketcher.Constraint("Horizontal", 1),
    Sketcher.Constraint("Vertical", 2),
    Sketcher.Constraint("Horizontal", 3),
    Sketcher.Constraint("PointOnObject", 0, 2, -2),
    Sketcher.Constraint("DistanceX", 1, 2, 1, 1, Q("31 mm")),
    Sketcher.Constraint("DistanceY", 0, 2, 0, 1, Q("35 mm")),
    Sketcher.Constraint("DistanceY", 0, 2, -1, 1, Q("23 mm")),
])
sketch14.setExpression("Constraints[9]", "Params.sketch14_width")
sketch14.setExpression("Constraints[10]", "Params.sketch14_height")
pad6 = doc.addObject("PartDesign::Pad", "Pad005")
body.addObject(pad6)
pad6.Profile = sketch14
pad6.setExpression("Length", "Params.pad6_length")
pad6.Reversed = True

# Sketch on XY plane
sketch15 = doc.addObject("Sketcher::SketchObject", "Sketch014")
body.addObject(sketch15)
sketch15.AttachmentSupport = (doc.XY_Plane, [""])
sketch15.MapMode = "FlatFace"
sketch15.AttachmentOffset = App.Placement(V(0, 0, 45), App.Rotation())
add_polygon(sketch15, [(0, 7), (0, 12), (-31, 12), (-31, 2), (-20, 2), (-20, 7)])  # lines 0-5
add_polygon(sketch15, [(-31, -18), (-31, -23), (-16, -23), (-16, -18)])  # lines 6-9
sketch15.addConstraint([
    Sketcher.Constraint("Vertical", 0),
    Sketcher.Constraint("Horizontal", 1),
    Sketcher.Constraint("Vertical", 2),
    Sketcher.Constraint("Horizontal", 3),
    Sketcher.Constraint("Vertical", 4),
    Sketcher.Constraint("Horizontal", 5),
    Sketcher.Constraint("Vertical", 6),
    Sketcher.Constraint("Horizontal", 7),
    Sketcher.Constraint("Vertical", 8),
    Sketcher.Constraint("Horizontal", 9),
    Sketcher.Constraint("PointOnObject", 0, 2, -2),
    Sketcher.Constraint("Vertical", 2, 2, 6, 2),
    Sketcher.Constraint("Equal", 0, 4),
    Sketcher.Constraint("Equal", 4, 6),
    Sketcher.Constraint("DistanceX", 1, 2, 1, 1, Q("31 mm")),
    Sketcher.Constraint("DistanceX", 3, 1, 3, 2, Q("11 mm")),
    Sketcher.Constraint("DistanceY", 0, 1, 0, 2, Q("5 mm")),
    Sketcher.Constraint("DistanceY", -1, 1, 0, 2, Q("12 mm")),
    Sketcher.Constraint("DistanceY", 6, 2, -1, 1, Q("23 mm")),
    Sketcher.Constraint("DistanceX", 7, 1, 7, 2, Q("14.844506 mm")),
])
sketch15.setExpression("Constraints[24]", "Params.sketch15_width")
sketch15.setExpression("Constraints[25]", "Params.sketch15_width2")
sketch15.setExpression("Constraints[26]", "Params.sketch15_height")
pad7 = doc.addObject("PartDesign::Pad", "Pad006")
body.addObject(pad7)
pad7.Profile = sketch15
pad7.setExpression("Length", "Params.pad7_length")

# Sketch on XY plane
sketch16 = doc.addObject("Sketcher::SketchObject", "Sketch015")
body.addObject(sketch16)
sketch16.AttachmentSupport = (doc.XY_Plane, [""])
sketch16.MapMode = "FlatFace"
sketch16.AttachmentOffset = App.Placement(V(0, 0, 52), App.Rotation())
add_polygon(sketch16, [(-31, 12), (-31, -23), (0, -23), (0, 12)])  # lines 0-3
sketch16.addConstraint([
    Sketcher.Constraint("Vertical", 0),
    Sketcher.Constraint("Horizontal", 1),
    Sketcher.Constraint("Vertical", 2),
    Sketcher.Constraint("Horizontal", 3),
    Sketcher.Constraint("PointOnObject", 1, 2, -2),
    Sketcher.Constraint("DistanceX", 1, 1, 1, 2, Q("31 mm")),
    Sketcher.Constraint("DistanceY", 0, 2, 0, 1, Q("35 mm")),
    Sketcher.Constraint("DistanceY", 0, 2, -1, 1, Q("23 mm")),
])
sketch16.setExpression("Constraints[9]", "Params.sketch16_width")
sketch16.setExpression("Constraints[10]", "Params.sketch16_height")
pad8 = doc.addObject("PartDesign::Pad", "Pad007")
body.addObject(pad8)
pad8.Profile = sketch16
pad8.setExpression("Length", "Params.pad8_length")

# Sketch on XZ plane
sketch17 = doc.addObject("Sketcher::SketchObject", "Sketch016")
body.addObject(sketch17)
sketch17.AttachmentSupport = (doc.XZ_Plane, [""])
sketch17.MapMode = "FlatFace"
sketch17.AttachmentOffset = App.Placement(V(0, 0, -2), App.Rotation())
add_polygon(sketch17, [(-21, -35), (-21, -45), (0, -45), (0, -35)])  # lines 0-3
sketch17.addConstraint([
    Sketcher.Constraint("Vertical", 0),
    Sketcher.Constraint("Horizontal", 1),
    Sketcher.Constraint("Vertical", 2),
    Sketcher.Constraint("Horizontal", 3),
    Sketcher.Constraint("PointOnObject", 1, 2, -2),
    Sketcher.Constraint("DistanceX", 1, 1, 1, 2, Q("21 mm")),
    Sketcher.Constraint("DistanceY", 0, 2, 0, 1, Q("10 mm")),
    Sketcher.Constraint("DistanceY", 0, 2, -1, 1, Q("45 mm")),
])
sketch17.setExpression("Constraints[9]", "Params.sketch17_width")
sketch17.setExpression("Constraints[10]", "Params.sketch17_height")
pad9 = doc.addObject("PartDesign::Pad", "Pad008")
body.addObject(pad9)
pad9.Profile = sketch17
pad9.setExpression("Length", "Params.pad9_length")
pad9.Reversed = True

# Sketch on YZ plane
sketch18 = doc.addObject("Sketcher::SketchObject", "Sketch017")
body.addObject(sketch18)
sketch18.AttachmentSupport = (doc.YZ_Plane, [""])
sketch18.MapMode = "FlatFace"
sketch18.AttachmentOffset = App.Placement(V(0, 0, -31), App.Rotation())
add_polygon(sketch18, [(12, -2), (-23, -2), (-23, 2), (12, 2)])  # lines 0-3
add_polygon(sketch18, [(12, 47), (-23, 47), (-23, 57), (12, 57)])  # lines 4-7
sketch18.addConstraint([
    Sketcher.Constraint("Horizontal", 0),
    Sketcher.Constraint("Vertical", 1),
    Sketcher.Constraint("Horizontal", 2),
    Sketcher.Constraint("Vertical", 3),
    Sketcher.Constraint("Horizontal", 4),
    Sketcher.Constraint("Vertical", 5),
    Sketcher.Constraint("Horizontal", 6),
    Sketcher.Constraint("Vertical", 7),
    Sketcher.Constraint("Vertical", 1, 2, 4, 2),
    Sketcher.Constraint("Vertical", 3, 2, 6, 2),
    Sketcher.Constraint("DistanceX", 0, 2, 0, 1, Q("35 mm")),
    Sketcher.Constraint("DistanceY", 1, 1, 1, 2, Q("5 mm")),
    Sketcher.Constraint("DistanceY", 5, 1, 5, 2, Q("10 mm")),
    Sketcher.Constraint("DistanceX", 0, 2, -1, 1, Q("23 mm")),
    Sketcher.Constraint("DistanceY", -1, 1, 4, 2, Q("47 mm")),
    Sketcher.Constraint("DistanceY", 0, 2, -1, 1, Q("2.5 mm")),
])
sketch18.setExpression("Constraints[18]", "Params.sketch18_width")
sketch18.setExpression("Constraints[19]", "Params.sketch18_height")
sketch18.setExpression("Constraints[20]", "Params.sketch18_height2")
pad10 = doc.addObject("PartDesign::Pad", "Pad009")
body.addObject(pad10)
pad10.Profile = sketch18
pad10.setExpression("Length", "Params.pad10_length")
pad10.Reversed = True

# Sketch on YZ plane
sketch19 = doc.addObject("Sketcher::SketchObject", "Sketch018")
body.addObject(sketch19)
sketch19.AttachmentSupport = (doc.YZ_Plane, [""])
sketch19.MapMode = "FlatFace"
sketch19.AttachmentOffset = App.Placement(V(0, 0, -51), App.Rotation())
sketch19.addGeometry([
    Part.Circle(V(-3, -25, 0), V(0, 0, 1), 10),
    Part.Circle(V(-3, 25, 0), V(0, 0, 1), 10),
], False)
sketch19.addConstraint([
    Sketcher.Constraint("Equal", 0, 1),
    Sketcher.Constraint("Symmetric", 0, 3, 1, 3, -1),
    Sketcher.Constraint("Diameter", 0, Q("20 mm")),
    Sketcher.Constraint("DistanceX", 0, 3, -1, 1, Q("3 mm")),
    Sketcher.Constraint("DistanceY", 0, 3, -1, 1, Q("25 mm")),
])
sketch19.setExpression("Constraints[2]", "Params.sketch19_diameter")
pocket9 = doc.addObject("PartDesign::Pocket", "Pocket008")
body.addObject(pocket9)
pocket9.Profile = sketch19
pocket9.Type = "ThroughAll"
pocket9.Reversed = True

# Sketch on YZ plane
sketch20 = doc.addObject("Sketcher::SketchObject", "Sketch019")
body.addObject(sketch20)
sketch20.AttachmentSupport = (doc.YZ_Plane, [""])
sketch20.MapMode = "FlatFace"
sketch20.AttachmentOffset = App.Placement(V(0, 0, -20), App.Rotation())
add_polygon(sketch20, [(7, 35), (-3, 35), (-3, 15), (7, 15)])  # lines 0-3
add_polygon(sketch20, [(-3, -15), (-3, -35), (7, -35), (7, -15)])  # lines 4-7
sketch20.addConstraint([
    Sketcher.Constraint("Horizontal", 0),
    Sketcher.Constraint("Vertical", 1),
    Sketcher.Constraint("Horizontal", 2),
    Sketcher.Constraint("Vertical", 3),
    Sketcher.Constraint("Vertical", 4),
    Sketcher.Constraint("Horizontal", 5),
    Sketcher.Constraint("Vertical", 6),
    Sketcher.Constraint("Symmetric", 0, 2, 4, 2, -1),
    Sketcher.Constraint("Vertical", 3, 2, 5, 2),
    Sketcher.Constraint("Equal", 3, 4),
    Sketcher.Constraint("DistanceX", 0, 2, 0, 1, Q("10 mm")),
    Sketcher.Constraint("DistanceY", 1, 2, 1, 1, Q("20 mm")),
    Sketcher.Constraint("DistanceX", 0, 2, -1, 1, Q("3 mm")),
    Sketcher.Constraint("DistanceY", -1, 1, 0, 2, Q("35 mm")),
    Sketcher.Constraint("DistanceY", 6, 1, 6, 2, Q("19.898979 mm")),
])
sketch20.setExpression("Constraints[18]", "Params.sketch20_width")
sketch20.setExpression("Constraints[19]", "Params.sketch20_height")
pocket10 = doc.addObject("PartDesign::Pocket", "Pocket009")
body.addObject(pocket10)
pocket10.Profile = sketch20
pocket10.setExpression("Length", "Params.pocket10_length")

doc.recompute()
